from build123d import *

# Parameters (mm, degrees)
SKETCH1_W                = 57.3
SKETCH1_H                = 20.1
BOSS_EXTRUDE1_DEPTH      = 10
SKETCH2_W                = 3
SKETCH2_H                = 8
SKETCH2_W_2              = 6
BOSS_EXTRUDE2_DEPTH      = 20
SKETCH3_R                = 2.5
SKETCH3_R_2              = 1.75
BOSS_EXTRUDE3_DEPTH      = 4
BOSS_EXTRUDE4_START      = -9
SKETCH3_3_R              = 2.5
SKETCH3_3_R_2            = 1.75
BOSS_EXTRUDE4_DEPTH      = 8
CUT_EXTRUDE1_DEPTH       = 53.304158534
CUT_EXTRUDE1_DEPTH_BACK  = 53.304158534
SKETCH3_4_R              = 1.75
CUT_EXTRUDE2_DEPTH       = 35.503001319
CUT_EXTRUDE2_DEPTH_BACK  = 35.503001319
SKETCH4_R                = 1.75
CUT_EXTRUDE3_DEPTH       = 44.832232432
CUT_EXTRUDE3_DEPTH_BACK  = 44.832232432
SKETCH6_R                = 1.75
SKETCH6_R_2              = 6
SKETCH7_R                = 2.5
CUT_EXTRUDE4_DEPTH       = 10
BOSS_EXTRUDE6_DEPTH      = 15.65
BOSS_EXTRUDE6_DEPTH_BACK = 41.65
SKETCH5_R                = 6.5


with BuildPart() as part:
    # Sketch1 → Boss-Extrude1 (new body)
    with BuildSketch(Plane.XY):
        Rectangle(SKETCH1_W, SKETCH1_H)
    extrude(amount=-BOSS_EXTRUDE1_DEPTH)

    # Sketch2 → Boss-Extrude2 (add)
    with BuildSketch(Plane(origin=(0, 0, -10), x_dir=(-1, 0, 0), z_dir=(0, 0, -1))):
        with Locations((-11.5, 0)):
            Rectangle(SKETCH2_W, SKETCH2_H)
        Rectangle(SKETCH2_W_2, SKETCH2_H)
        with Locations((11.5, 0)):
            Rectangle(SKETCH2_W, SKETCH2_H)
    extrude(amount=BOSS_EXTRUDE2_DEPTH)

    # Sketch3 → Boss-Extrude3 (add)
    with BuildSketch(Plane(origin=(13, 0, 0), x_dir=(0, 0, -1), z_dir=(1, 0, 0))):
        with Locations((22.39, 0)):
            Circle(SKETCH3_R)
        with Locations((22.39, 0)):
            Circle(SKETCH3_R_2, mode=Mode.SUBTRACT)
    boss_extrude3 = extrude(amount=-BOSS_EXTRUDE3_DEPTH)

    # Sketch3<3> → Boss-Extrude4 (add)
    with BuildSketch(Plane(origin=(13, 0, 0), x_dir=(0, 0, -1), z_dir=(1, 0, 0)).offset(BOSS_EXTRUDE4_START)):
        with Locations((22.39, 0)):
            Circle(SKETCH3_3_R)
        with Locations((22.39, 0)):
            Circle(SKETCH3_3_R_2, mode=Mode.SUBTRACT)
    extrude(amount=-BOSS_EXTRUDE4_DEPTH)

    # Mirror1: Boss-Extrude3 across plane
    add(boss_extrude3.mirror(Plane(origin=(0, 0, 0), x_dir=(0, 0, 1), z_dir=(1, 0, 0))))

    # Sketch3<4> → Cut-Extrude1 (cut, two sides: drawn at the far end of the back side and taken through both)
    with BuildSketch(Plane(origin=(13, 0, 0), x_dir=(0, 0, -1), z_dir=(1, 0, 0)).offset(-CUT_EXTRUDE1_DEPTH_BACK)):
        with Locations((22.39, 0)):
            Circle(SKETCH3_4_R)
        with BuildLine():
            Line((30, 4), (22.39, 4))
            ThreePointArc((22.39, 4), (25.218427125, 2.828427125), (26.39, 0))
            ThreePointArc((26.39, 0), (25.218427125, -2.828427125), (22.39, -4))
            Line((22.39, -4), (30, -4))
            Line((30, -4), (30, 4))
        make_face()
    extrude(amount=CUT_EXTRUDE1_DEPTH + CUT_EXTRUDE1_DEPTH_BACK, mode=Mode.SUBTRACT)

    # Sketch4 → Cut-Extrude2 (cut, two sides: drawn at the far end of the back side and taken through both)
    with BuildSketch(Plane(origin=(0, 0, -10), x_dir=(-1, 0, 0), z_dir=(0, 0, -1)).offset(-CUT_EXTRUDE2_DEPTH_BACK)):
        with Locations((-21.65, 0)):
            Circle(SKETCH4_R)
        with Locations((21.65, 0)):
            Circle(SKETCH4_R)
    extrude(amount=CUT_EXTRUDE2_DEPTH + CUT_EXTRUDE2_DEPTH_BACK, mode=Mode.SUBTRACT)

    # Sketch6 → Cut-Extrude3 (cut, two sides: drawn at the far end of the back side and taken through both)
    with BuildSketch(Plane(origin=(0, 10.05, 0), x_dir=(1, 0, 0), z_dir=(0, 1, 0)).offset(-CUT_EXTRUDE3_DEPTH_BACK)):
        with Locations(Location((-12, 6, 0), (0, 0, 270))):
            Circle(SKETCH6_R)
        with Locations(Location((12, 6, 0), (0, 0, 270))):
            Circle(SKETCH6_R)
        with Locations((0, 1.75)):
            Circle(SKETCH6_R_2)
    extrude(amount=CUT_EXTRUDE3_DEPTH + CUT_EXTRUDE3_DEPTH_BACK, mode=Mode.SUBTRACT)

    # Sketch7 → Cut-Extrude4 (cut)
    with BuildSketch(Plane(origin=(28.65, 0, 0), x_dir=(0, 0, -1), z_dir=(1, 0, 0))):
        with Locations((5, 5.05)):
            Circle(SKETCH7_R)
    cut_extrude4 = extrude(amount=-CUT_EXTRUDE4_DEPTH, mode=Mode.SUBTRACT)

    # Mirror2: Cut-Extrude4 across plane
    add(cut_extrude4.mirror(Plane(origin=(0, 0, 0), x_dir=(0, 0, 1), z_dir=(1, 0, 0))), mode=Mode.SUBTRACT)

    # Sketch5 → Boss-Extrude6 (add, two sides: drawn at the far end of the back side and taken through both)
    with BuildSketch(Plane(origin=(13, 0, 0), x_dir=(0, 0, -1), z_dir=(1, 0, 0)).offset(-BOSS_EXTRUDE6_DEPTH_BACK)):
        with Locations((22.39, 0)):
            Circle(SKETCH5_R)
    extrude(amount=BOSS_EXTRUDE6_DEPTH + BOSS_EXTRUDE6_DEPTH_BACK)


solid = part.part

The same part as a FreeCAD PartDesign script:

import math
import FreeCAD as App
import Part
import Sketcher
from FreeCAD import Vector
Q = App.Units.Quantity

doc = App.newDocument("Part")
body = doc.addObject("PartDesign::Body", "Body")

sketch1 = body.newObject("Sketcher::SketchObject", "Sketch")
sketch1.AttachmentSupport = (doc.getObject("XY_Plane"), [""])
sketch1.MapMode = "FlatFace"
sketch1.addGeometry([
    Part.LineSegment(Vector(-29, 10, 0), Vector(-29, -10, 0)),
    Part.LineSegment(Vector(-29, -10, 0), Vector(29, -10, 0)),
    Part.LineSegment(Vector(29, -10, 0), Vector(29, 10, 0)),
    Part.LineSegment(Vector(29, 10, 0), Vector(-29, 10, 0)),
], False)
sketch1.addConstraint([
    Sketcher.Constraint("Coincident", 0, 2, 1, 1),
    Sketcher.Constraint("Coincident", 1, 2, 2, 1),
    Sketcher.Constraint("Coincident", 2, 2, 3, 1),
    Sketcher.Constraint("Coincident", 3, 2, 0, 1),
    Sketcher.Constraint("Vertical", 0),
    Sketcher.Constraint("Horizontal", 1),
    Sketcher.Constraint("Vertical", 2),
    Sketcher.Constraint("Horizontal", 3),
    Sketcher.Constraint("Symmetric", 0, 2, 2, 2, -1, 1),
    Sketcher.Constraint("DistanceX", 1, 1, 1, 2, Q("57.3 mm")),
    Sketcher.Constraint("DistanceY", 0, 2, 0, 1, Q("20.1 mm")),
])
pad1 = body.newObject("PartDesign::Pad", "Pad")
pad1.Profile = sketch1
pad1.Length = 10
pad1.Reversed = True

sketch2 = body.newObject("Sketcher::SketchObject", "Sketch001")
sketch2.AttachmentSupport = (doc.getObject("XY_Plane"), [""])
sketch2.MapMode = "FlatFace"
sketch2.AttachmentOffset = App.Placement(Vector(0, 0, -10), App.Rotation())
sketch2.addGeometry([
    Part.LineSegment(Vector(13, 4, 0), Vector(13, -4, 0)),
    Part.LineSegment(Vector(13, -4, 0), Vector(10, -4, 0)),
    Part.LineSegment(Vector(10, -4, 0), Vector(10, 4, 0)),
    Part.LineSegment(Vector(10, 4, 0), Vector(13, 4, 0)),
    Part.LineSegment(Vector(3, 4, 0), Vector(3, -4, 0)),
    Part.LineSegment(Vector(3, -4, 0), Vector(-3, -4, 0)),
    Part.LineSegment(Vector(-3, -4, 0), Vector(-3, 4, 0)),
    Part.LineSegment(Vector(-3, 4, 0), Vector(3, 4, 0)),
    Part.LineSegment(Vector(-10, 4, 0), Vector(-10, -4, 0)),
    Part.LineSegment(Vector(-10, -4, 0), Vector(-13, -4, 0)),
    Part.LineSegment(Vector(-13, -4, 0), Vector(-13, 4, 0)),
    Part.LineSegment(Vector(-13, 4, 0), Vector(-10, 4, 0)),
], False)
sketch2.addConstraint([
    Sketcher.Constraint("Coincident", 0, 2, 1, 1),
    Sketcher.Constraint("Coincident", 1, 2, 2, 1),
    Sketcher.Constraint("Coincident", 2, 2, 3, 1),
    Sketcher.Constraint("Coincident", 3, 2, 0, 1),
    Sketcher.Constraint("Coincident", 4, 2, 5, 1),
    Sketcher.Constraint("Coincident", 5, 2, 6, 1),
    Sketcher.Constraint("Coincident", 6, 2, 7, 1),
    Sketcher.Constraint("Coincident", 7, 2, 4, 1),
    Sketcher.Constraint("Coincident", 8, 2, 9, 1),
    Sketcher.Constraint("Coincident", 9, 2, 10, 1),
    Sketcher.Constraint("Coincident", 10, 2, 11, 1),
    Sketcher.Constraint("Coincident", 11, 2, 8, 1),
    Sketcher.Constraint("Vertical", 0),
    Sketcher.Constraint("Horizontal", 1),
    Sketcher.Constraint("Vertical", 2),
    Sketcher.Constraint("Horizontal", 3),
    Sketcher.Constraint("Vertical", 4),
    Sketcher.Constraint("Horizontal", 5),
    Sketcher.Constraint("Vertical", 6),
    Sketcher.Constraint("Horizontal", 7),
    Sketcher.Constraint("Vertical", 8),
    Sketcher.Constraint("Horizontal", 9),
    Sketcher.Constraint("Vertical", 10),
    Sketcher.Constraint("Horizontal", 11),
    Sketcher.Constraint("Symmetric", 4, 2, 6, 2, -1, 1),
    Sketcher.Constraint("Symmetric", 2, 2, 8, 2, -1, 1),
    Sketcher.Constraint("Symmetric", 0, 2, 10, 2, -1, 1),
    Sketcher.Constraint("Horizontal", 1, 2, 4, 2),
    Sketcher.Constraint("Horizontal", 3, 2, 6, 2),
    Sketcher.Constraint("DistanceX", 1, 2, 1, 1, Q("3 mm")),
    Sketcher.Constraint("DistanceX", 5, 2, 5, 1, Q("6 mm")),
    Sketcher.Constraint("DistanceY", 0, 2, 0, 1, Q("8 mm")),
    Sketcher.Constraint("DistanceX", -1, 1, 0, 2, Q("13 mm")),
])
pad2 = body.newObject("PartDesign::Pad", "Pad001")
pad2.Profile = sketch2
pad2.Length = 20
pad2.Reversed = True

sketch3 = body.newObject("Sketcher::SketchObject", "Sketch002")
sketch3.AttachmentSupport = (doc.getObject("YZ_Plane"), [""])
sketch3.MapMode = "FlatFace"
sketch3.AttachmentOffset = App.Placement(Vector(0, 0, 13), App.Rotation())
sketch3.addGeometry([
    Part.Circle(Vector(0, -22.4, 0), Vector(0, 0, 1), 2.5),
    Part.Circle(Vector(0, -22.4, 0), Vector(0, 0, 1), 1.8),
], False)
sketch3.addConstraint([
    Sketcher.Constraint("Coincident", 1, 3, 0, 3),
    Sketcher.Constraint("PointOnObject", 0, 3, -2),
    Sketcher.Constraint("Diameter", 0, Q("5 mm")),
    Sketcher.Constraint("Diameter", 1, Q("3.5 mm")),
    Sketcher.Constraint("DistanceY", 0, 3, -1, 1, Q("22.39 mm")),
])
pad3 = body.newObject("PartDesign::Pad", "Pad002")
pad3.Profile = sketch3
pad3.Length = 4
pad3.Reversed = True

sketch4 = body.newObject("Sketcher::SketchObject", "Sketch003")
sketch4.AttachmentSupport = (doc.getObject("YZ_Plane"), [""])
sketch4.MapMode = "FlatFace"
sketch4.AttachmentOffset = App.Placement(Vector(0, 0, 4), App.Rotation())
sketch4.addGeometry([
    Part.Circle(Vector(0, -22.4, 0), Vector(0, 0, 1), 2.5),
    Part.Circle(Vector(0, -22.4, 0), Vector(0, 0, 1), 1.8),
], False)
sketch4.addConstraint([
    Sketcher.Constraint("Coincident", 1, 3, 0, 3),
    Sketcher.Constraint("PointOnObject", 0, 3, -2),
    Sketcher.Constraint("Diameter", 0, Q("5 mm")),
    Sketcher.Constraint("Diameter", 1, Q("3.5 mm")),
    Sketcher.Constraint("DistanceY", 0, 3, -1, 1, Q("22.39 mm")),
])
pad4 = body.newObject("PartDesign::Pad", "Pad003")
pad4.Profile = sketch4
pad4.Length = 8
pad4.Reversed = True
doc.recompute()

mirrored = body.newObject("PartDesign::Mirrored", "Mirrored")
mirrored.Originals = [pad3]
mirrored.MirrorPlane = (doc.getObject("YZ_Plane"), [""])
body.Tip = mirrored

sketch5 = body.newObject("Sketcher::SketchObject", "Sketch004")
sketch5.AttachmentSupport = (doc.getObject("YZ_Plane"), [""])
sketch5.MapMode = "FlatFace"
sketch5.AttachmentOffset = App.Placement(Vector(0, 0, 13), App.Rotation())
sketch5.addGeometry([
    Part.Circle(Vector(0, -22.4, 0), Vector(0, 0, 1), 1.8),
    Part.LineSegment(Vector(4, -30, 0), Vector(4, -22.4, 0)),
    Part.ArcOfCircle(Part.Circle(Vector(0, -22.4, 0), Vector(0, 0, 1), 4), math.radians(-90), math.radians(0)),
    Part.ArcOfCircle(Part.Circle(Vector(0, -22.4, 0), Vector(0, 0, 1), 4), math.radians(180), math.radians(270)),
    Part.LineSegment(Vector(-4, -22.4, 0), Vector(-4, -30, 0)),
    Part.LineSegment(Vector(-4, -30, 0), Vector(4, -30, 0)),
], False)
sketch5.addConstraint([
    Sketcher.Constraint("Tangent", 1, 2, 2, 2),
    Sketcher.Constraint("Tangent", 2, 1, 3, 2),
    Sketcher.Constraint("Tangent", 3, 1, 4, 1),
    Sketcher.Constraint("Coincident", 4, 2, 5, 1),
    Sketcher.Constraint("Coincident", 5, 2, 1, 1),
    Sketcher.Constraint("Vertical", 1),
    Sketcher.Constraint("Vertical", 4),
    Sketcher.Constraint("Horizontal", 5),
    Sketcher.Constraint("Coincident", 2, 3, 0, 3),
    Sketcher.Constraint("Equal", 2, 3),
    Sketcher.Constraint("PointOnObject", 0, 3, -2),
    Sketcher.Constraint("PointOnObject", 2, 1, -2),
    Sketcher.Constraint("Radius", 2, Q("4 mm")),
    Sketcher.Constraint("Diameter", 0, Q("3.5 mm")),
    Sketcher.Constraint("DistanceY", 4, 2, -1, 1, Q("30 mm")),
    Sketcher.Constraint("DistanceY", 1, 1, 1, 2, Q("7.61 mm")),
])
pocket1 = body.newObject("PartDesign::Pocket", "Pocket")
pocket1.Profile = sketch5
pocket1.Type = "ThroughAll"
pocket1.Midplane = True

sketch6 = body.newObject("Sketcher::SketchObject", "Sketch005")
sketch6.AttachmentSupport = (doc.getObject("XY_Plane"), [""])
sketch6.MapMode = "FlatFace"
sketch6.AttachmentOffset = App.Placement(Vector(0, 0, -10), App.Rotation())
sketch6.addGeometry([
    Part.Circle(Vector(21.6, 0, 0), Vector(0, 0, 1), 1.8),
    Part.Circle(Vector(-21.6, 0, 0), Vector(0, 0, 1), 1.8),
], False)
sketch6.addConstraint([
    Sketcher.Constraint("Equal", 0, 1),
    Sketcher.Constraint("Symmetric", 0, 3, 1, 3, -1, 1),
    Sketcher.Constraint("PointOnObject", 0, 3, -1),
    Sketcher.Constraint("Diameter", 0, Q("3.5 mm")),
    Sketcher.Constraint("DistanceX", 1, 3, 0, 3, Q("43.3 mm")),
])
pocket2 = body.newObject("PartDesign::Pocket", "Pocket001")
pocket2.Profile = sketch6
pocket2.Type = "ThroughAll"
pocket2.Midplane = True

sketch7 = body.newObject("Sketcher::SketchObject", "Sketch006")
sketch7.AttachmentSupport = (doc.getObject("XZ_Plane"), [""])
sketch7.MapMode = "FlatFace"
sketch7.AttachmentOffset = App.Placement(Vector(0, 0, -10.05), App.Rotation())
sketch7.addGeometry([
    Part.Circle(Vector(-12, -6, 0), Vector(0, 0, 1), 1.8),
    Part.Circle(Vector(12, -6, 0), Vector(0, 0, 1), 1.8),
    Part.Circle(Vector(0, -1.8, 0), Vector(0, 0, 1), 6),
], False)
sketch7.addConstraint([
    Sketcher.Constraint("Equal", 0, 1),
    Sketcher.Constraint("Symmetric", 0, 3, 1, 3, -2),
    Sketcher.Constraint("PointOnObject", 2, 3, -2),
    Sketcher.Constraint("Diameter", 2, Q("12 mm")),
    Sketcher.Constraint("Diameter", 0, Q("3.5 mm")),
    Sketcher.Constraint("DistanceX", 0, 3, -1, 1, Q("12 mm")),
    Sketcher.Constraint("DistanceY", 0, 3, -1, 1, Q("6 mm")),
    Sketcher.Constraint("DistanceY", 2, 3, -1, 1, Q("1.75 mm")),
])
pocket3 = body.newObject("PartDesign::Pocket", "Pocket002")
pocket3.Profile = sketch7
pocket3.Type = "ThroughAll"
pocket3.Midplane = True

sketch8 = body.newObject("Sketcher::SketchObject", "Sketch007")
sketch8.AttachmentSupport = (doc.getObject("YZ_Plane"), [""])
sketch8.MapMode = "FlatFace"
sketch8.AttachmentOffset = App.Placement(Vector(0, 0, 28.65), App.Rotation())
sketch8.addGeometry(Part.Circle(Vector(5, -5, 0), Vector(0, 0, 1), 2.5), False)
sketch8.addConstraint([
    Sketcher.Constraint("Diameter", 0, Q("5 mm")),
    Sketcher.Constraint("DistanceY", 0, 3, -1, 1, Q("5 mm")),
    Sketcher.Constraint("DistanceX", -1, 1, 0, 3, Q("5.05 mm")),
])
pocket4 = body.newObject("PartDesign::Pocket", "Pocket003")
pocket4.Profile = sketch8
pocket4.Length = 10
doc.recompute()

mirrored2 = body.newObject("PartDesign::Mirrored", "Mirrored001")
mirrored2.Originals = [pocket4]
mirrored2.MirrorPlane = (doc.getObject("YZ_Plane"), [""])
body.Tip = mirrored2

sketch9 = body.newObject("Sketcher::SketchObject", "Sketch008")
sketch9.AttachmentSupport = (doc.getObject("YZ_Plane"), [""])
sketch9.MapMode = "FlatFace"
sketch9.AttachmentOffset = App.Placement(Vector(0, 0, 13), App.Rotation())
sketch9.addGeometry(Part.Circle(Vector(0, -22, 0), Vector(0, 0, 1), 6), False)
sketch9.addConstraint([
    Sketcher.Constraint("PointOnObject", 0, 3, -2),
    Sketcher.Constraint("Diameter", 0, Q("13 mm")),
    Sketcher.Constraint("DistanceY", 0, 3, -1, 1, Q("22.39 mm")),
])
pad5 = body.newObject("PartDesign::Pad", "Pad004")
pad5.Profile = sketch9
pad5.Type = "TwoLengths"
pad5.Length = 15.65
pad5.Length2 = 41.65

doc.recompute()
